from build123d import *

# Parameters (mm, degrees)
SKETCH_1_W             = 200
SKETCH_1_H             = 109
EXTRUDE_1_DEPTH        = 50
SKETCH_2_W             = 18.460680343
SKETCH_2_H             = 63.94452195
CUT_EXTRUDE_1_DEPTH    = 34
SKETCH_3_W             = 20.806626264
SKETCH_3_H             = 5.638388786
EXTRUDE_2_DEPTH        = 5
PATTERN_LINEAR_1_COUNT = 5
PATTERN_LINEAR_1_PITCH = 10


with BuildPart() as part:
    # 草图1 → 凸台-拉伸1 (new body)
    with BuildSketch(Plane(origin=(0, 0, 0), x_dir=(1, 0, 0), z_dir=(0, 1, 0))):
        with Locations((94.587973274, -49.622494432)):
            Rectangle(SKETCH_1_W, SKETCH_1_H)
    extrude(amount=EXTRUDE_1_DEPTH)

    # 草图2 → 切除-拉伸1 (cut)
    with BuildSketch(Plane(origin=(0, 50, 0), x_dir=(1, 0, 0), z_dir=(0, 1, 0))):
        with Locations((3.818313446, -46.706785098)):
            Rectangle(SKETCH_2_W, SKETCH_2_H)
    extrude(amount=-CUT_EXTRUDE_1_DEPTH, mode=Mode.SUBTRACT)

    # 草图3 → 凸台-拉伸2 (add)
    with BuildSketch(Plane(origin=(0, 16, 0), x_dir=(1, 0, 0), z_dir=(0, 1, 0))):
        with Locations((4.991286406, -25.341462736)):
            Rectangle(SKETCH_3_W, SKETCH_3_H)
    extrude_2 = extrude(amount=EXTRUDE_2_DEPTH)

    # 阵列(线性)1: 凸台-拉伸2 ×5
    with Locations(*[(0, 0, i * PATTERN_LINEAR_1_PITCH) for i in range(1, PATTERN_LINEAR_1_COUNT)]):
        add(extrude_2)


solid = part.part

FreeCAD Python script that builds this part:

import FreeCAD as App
import Part
import Sketcher

V = App.Vector
Q = App.Units.Quantity

doc = App.newDocument("Part")
body = doc.addObject("PartDesign::Body", "Body")

# Sketch on XZ plane
sketch1 = doc.addObject("Sketcher::SketchObject", "Sketch")
body.addObject(sketch1)
sketch1.AttachmentSupport = (doc.XZ_Plane, [""])
sketch1.MapMode = "FlatFace"
sketch1.addGeometry([
    Part.LineSegment(V(-5, -5, 0), V(-5, 104, 0)),
    Part.LineSegment(V(-5, 104, 0), V(195, 104, 0)),
    Part.LineSegment(V(195, 104, 0), V(195, -5, 0)),
    Part.LineSegment(V(195, -5, 0), V(-5, -5, 0)),
], False)
sketch1.addConstraint([
    Sketcher.Constraint("Coincident", 0, 2, 1, 1),
    Sketcher.Constraint("Coincident", 1, 2, 2, 1),
    Sketcher.Constraint("Coincident", 2, 2, 3, 1),
    Sketcher.Constraint("Coincident", 3, 2, 0, 1),
    Sketcher.Constraint("Vertical", 0),
    Sketcher.Constraint("Horizontal", 1),
    Sketcher.Constraint("Vertical", 2),
    Sketcher.Constraint("Horizontal", 3),
    Sketcher.Constraint("DistanceX", 1, 1, 1, 2, Q("200 mm")),
    Sketcher.Constraint("DistanceY", 0, 1, 0, 2, Q("109 mm")),
    Sketcher.Constraint("DistanceX", 0, 2, -1, 1, Q("5.412027 mm")),
    Sketcher.Constraint("DistanceY", -1, 1, 0, 2, Q("104.122494 mm")),
])
pad1 = doc.addObject("PartDesign::Pad", "Pad")
body.addObject(pad1)
pad1.Profile = sketch1
pad1.Length = 50
pad1.Reversed = True

# Sketch on XZ plane
sketch2 = doc.addObject("Sketcher::SketchObject", "Sketch001")
body.addObject(sketch2)
sketch2.AttachmentSupport = (doc.XZ_Plane, [""])
sketch2.MapMode = "FlatFace"
sketch2.AttachmentOffset = App.Placement(V(0, 0, -50), App.Rotation())
sketch2.addGeometry([
    Part.LineSegment(V(-5, 15, 0), V(-5, 79, 0)),
    Part.LineSegment(V(-5, 79, 0), V(13, 79, 0)),
    Part.LineSegment(V(13, 79, 0), V(13, 15, 0)),
    Part.LineSegment(V(13, 15, 0), V(-5, 15, 0)),
], False)
sketch2.addConstraint([
    Sketcher.Constraint("Coincident", 0, 2, 1, 1),
    Sketcher.Constraint("Coincident", 1, 2, 2, 1),
    Sketcher.Constraint("Coincident", 2, 2, 3, 1),
    Sketcher.Constraint("Coincident", 3, 2, 0, 1),
    Sketcher.Constraint("Vertical", 0),
    Sketcher.Constraint("Horizontal", 1),
    Sketcher.Constraint("Vertical", 2),
    Sketcher.Constraint("Horizontal", 3),
    Sketcher.Constraint("DistanceX", 1, 1, 1, 2, Q("18.46068 mm")),
    Sketcher.Constraint("DistanceY", 0, 1, 0, 2, Q("63.944522 mm")),
    Sketcher.Constraint("DistanceX", 0, 2, -1, 1, Q("5.412027 mm")),
    Sketcher.Constraint("DistanceY", -1, 1, 0, 2, Q("78.679046 mm")),
])
pocket1 = doc.addObject("PartDesign::Pocket", "Pocket")
body.addObject(pocket1)
pocket1.Profile = sketch2
pocket1.Length = 34
pocket1.Reversed = True

# Sketch on XZ plane
sketch3 = doc.addObject("Sketcher::SketchObject", "Sketch002")
body.addObject(sketch3)
sketch3.AttachmentSupport = (doc.XZ_Plane, [""])
sketch3.MapMode = "FlatFace"
sketch3.AttachmentOffset = App.Placement(V(0, 0, -16), App.Rotation())
sketch3.addGeometry([
    Part.LineSegment(V(-5, 23, 0), V(-5, 28, 0)),
    Part.LineSegment(V(-5, 28, 0), V(15, 28, 0)),
    Part.LineSegment(V(15, 28, 0), V(15, 23, 0)),
    Part.LineSegment(V(15, 23, 0), V(-5, 23, 0)),
], False)
sketch3.addConstraint([
    Sketcher.Constraint("Coincident", 0, 2, 1, 1),
    Sketcher.Constraint("Coincident", 1, 2, 2, 1),
    Sketcher.Constraint("Coincident", 2, 2, 3, 1),
    Sketcher.Constraint("Coincident", 3, 2, 0, 1),
    Sketcher.Constraint("Vertical", 0),
    Sketcher.Constraint("Horizontal", 1),
    Sketcher.Constraint("Vertical", 2),
    Sketcher.Constraint("Horizontal", 3),
    Sketcher.Constraint("DistanceY", 0, 1, 0, 2, Q("5.638389 mm")),
    Sketcher.Constraint("DistanceX", -1, 1, 1, 2, Q("15.3946 mm")),
    Sketcher.Constraint("DistanceX", 1, 1, 1, 2, Q("20.806626 mm")),
    Sketcher.Constraint("DistanceY", -1, 1, 2, 2, Q("22.522268 mm")),
])
pad2 = doc.addObject("PartDesign::Pad", "Pad001")
body.addObject(pad2)
pad2.Profile = sketch3
pad2.Length = 5
pad2.Reversed = True
doc.recompute()

linearpattern = doc.addObject("PartDesign::LinearPattern", "LinearPattern")
body.addObject(linearpattern)
linearpattern.Originals = [pad2]
linearpattern.Direction = (doc.Z_Axis, [""])
linearpattern.Mode = "offset"
linearpattern.Offset = 10
linearpattern.Occurrences = 5
body.Tip = linearpattern

doc.recompute()
